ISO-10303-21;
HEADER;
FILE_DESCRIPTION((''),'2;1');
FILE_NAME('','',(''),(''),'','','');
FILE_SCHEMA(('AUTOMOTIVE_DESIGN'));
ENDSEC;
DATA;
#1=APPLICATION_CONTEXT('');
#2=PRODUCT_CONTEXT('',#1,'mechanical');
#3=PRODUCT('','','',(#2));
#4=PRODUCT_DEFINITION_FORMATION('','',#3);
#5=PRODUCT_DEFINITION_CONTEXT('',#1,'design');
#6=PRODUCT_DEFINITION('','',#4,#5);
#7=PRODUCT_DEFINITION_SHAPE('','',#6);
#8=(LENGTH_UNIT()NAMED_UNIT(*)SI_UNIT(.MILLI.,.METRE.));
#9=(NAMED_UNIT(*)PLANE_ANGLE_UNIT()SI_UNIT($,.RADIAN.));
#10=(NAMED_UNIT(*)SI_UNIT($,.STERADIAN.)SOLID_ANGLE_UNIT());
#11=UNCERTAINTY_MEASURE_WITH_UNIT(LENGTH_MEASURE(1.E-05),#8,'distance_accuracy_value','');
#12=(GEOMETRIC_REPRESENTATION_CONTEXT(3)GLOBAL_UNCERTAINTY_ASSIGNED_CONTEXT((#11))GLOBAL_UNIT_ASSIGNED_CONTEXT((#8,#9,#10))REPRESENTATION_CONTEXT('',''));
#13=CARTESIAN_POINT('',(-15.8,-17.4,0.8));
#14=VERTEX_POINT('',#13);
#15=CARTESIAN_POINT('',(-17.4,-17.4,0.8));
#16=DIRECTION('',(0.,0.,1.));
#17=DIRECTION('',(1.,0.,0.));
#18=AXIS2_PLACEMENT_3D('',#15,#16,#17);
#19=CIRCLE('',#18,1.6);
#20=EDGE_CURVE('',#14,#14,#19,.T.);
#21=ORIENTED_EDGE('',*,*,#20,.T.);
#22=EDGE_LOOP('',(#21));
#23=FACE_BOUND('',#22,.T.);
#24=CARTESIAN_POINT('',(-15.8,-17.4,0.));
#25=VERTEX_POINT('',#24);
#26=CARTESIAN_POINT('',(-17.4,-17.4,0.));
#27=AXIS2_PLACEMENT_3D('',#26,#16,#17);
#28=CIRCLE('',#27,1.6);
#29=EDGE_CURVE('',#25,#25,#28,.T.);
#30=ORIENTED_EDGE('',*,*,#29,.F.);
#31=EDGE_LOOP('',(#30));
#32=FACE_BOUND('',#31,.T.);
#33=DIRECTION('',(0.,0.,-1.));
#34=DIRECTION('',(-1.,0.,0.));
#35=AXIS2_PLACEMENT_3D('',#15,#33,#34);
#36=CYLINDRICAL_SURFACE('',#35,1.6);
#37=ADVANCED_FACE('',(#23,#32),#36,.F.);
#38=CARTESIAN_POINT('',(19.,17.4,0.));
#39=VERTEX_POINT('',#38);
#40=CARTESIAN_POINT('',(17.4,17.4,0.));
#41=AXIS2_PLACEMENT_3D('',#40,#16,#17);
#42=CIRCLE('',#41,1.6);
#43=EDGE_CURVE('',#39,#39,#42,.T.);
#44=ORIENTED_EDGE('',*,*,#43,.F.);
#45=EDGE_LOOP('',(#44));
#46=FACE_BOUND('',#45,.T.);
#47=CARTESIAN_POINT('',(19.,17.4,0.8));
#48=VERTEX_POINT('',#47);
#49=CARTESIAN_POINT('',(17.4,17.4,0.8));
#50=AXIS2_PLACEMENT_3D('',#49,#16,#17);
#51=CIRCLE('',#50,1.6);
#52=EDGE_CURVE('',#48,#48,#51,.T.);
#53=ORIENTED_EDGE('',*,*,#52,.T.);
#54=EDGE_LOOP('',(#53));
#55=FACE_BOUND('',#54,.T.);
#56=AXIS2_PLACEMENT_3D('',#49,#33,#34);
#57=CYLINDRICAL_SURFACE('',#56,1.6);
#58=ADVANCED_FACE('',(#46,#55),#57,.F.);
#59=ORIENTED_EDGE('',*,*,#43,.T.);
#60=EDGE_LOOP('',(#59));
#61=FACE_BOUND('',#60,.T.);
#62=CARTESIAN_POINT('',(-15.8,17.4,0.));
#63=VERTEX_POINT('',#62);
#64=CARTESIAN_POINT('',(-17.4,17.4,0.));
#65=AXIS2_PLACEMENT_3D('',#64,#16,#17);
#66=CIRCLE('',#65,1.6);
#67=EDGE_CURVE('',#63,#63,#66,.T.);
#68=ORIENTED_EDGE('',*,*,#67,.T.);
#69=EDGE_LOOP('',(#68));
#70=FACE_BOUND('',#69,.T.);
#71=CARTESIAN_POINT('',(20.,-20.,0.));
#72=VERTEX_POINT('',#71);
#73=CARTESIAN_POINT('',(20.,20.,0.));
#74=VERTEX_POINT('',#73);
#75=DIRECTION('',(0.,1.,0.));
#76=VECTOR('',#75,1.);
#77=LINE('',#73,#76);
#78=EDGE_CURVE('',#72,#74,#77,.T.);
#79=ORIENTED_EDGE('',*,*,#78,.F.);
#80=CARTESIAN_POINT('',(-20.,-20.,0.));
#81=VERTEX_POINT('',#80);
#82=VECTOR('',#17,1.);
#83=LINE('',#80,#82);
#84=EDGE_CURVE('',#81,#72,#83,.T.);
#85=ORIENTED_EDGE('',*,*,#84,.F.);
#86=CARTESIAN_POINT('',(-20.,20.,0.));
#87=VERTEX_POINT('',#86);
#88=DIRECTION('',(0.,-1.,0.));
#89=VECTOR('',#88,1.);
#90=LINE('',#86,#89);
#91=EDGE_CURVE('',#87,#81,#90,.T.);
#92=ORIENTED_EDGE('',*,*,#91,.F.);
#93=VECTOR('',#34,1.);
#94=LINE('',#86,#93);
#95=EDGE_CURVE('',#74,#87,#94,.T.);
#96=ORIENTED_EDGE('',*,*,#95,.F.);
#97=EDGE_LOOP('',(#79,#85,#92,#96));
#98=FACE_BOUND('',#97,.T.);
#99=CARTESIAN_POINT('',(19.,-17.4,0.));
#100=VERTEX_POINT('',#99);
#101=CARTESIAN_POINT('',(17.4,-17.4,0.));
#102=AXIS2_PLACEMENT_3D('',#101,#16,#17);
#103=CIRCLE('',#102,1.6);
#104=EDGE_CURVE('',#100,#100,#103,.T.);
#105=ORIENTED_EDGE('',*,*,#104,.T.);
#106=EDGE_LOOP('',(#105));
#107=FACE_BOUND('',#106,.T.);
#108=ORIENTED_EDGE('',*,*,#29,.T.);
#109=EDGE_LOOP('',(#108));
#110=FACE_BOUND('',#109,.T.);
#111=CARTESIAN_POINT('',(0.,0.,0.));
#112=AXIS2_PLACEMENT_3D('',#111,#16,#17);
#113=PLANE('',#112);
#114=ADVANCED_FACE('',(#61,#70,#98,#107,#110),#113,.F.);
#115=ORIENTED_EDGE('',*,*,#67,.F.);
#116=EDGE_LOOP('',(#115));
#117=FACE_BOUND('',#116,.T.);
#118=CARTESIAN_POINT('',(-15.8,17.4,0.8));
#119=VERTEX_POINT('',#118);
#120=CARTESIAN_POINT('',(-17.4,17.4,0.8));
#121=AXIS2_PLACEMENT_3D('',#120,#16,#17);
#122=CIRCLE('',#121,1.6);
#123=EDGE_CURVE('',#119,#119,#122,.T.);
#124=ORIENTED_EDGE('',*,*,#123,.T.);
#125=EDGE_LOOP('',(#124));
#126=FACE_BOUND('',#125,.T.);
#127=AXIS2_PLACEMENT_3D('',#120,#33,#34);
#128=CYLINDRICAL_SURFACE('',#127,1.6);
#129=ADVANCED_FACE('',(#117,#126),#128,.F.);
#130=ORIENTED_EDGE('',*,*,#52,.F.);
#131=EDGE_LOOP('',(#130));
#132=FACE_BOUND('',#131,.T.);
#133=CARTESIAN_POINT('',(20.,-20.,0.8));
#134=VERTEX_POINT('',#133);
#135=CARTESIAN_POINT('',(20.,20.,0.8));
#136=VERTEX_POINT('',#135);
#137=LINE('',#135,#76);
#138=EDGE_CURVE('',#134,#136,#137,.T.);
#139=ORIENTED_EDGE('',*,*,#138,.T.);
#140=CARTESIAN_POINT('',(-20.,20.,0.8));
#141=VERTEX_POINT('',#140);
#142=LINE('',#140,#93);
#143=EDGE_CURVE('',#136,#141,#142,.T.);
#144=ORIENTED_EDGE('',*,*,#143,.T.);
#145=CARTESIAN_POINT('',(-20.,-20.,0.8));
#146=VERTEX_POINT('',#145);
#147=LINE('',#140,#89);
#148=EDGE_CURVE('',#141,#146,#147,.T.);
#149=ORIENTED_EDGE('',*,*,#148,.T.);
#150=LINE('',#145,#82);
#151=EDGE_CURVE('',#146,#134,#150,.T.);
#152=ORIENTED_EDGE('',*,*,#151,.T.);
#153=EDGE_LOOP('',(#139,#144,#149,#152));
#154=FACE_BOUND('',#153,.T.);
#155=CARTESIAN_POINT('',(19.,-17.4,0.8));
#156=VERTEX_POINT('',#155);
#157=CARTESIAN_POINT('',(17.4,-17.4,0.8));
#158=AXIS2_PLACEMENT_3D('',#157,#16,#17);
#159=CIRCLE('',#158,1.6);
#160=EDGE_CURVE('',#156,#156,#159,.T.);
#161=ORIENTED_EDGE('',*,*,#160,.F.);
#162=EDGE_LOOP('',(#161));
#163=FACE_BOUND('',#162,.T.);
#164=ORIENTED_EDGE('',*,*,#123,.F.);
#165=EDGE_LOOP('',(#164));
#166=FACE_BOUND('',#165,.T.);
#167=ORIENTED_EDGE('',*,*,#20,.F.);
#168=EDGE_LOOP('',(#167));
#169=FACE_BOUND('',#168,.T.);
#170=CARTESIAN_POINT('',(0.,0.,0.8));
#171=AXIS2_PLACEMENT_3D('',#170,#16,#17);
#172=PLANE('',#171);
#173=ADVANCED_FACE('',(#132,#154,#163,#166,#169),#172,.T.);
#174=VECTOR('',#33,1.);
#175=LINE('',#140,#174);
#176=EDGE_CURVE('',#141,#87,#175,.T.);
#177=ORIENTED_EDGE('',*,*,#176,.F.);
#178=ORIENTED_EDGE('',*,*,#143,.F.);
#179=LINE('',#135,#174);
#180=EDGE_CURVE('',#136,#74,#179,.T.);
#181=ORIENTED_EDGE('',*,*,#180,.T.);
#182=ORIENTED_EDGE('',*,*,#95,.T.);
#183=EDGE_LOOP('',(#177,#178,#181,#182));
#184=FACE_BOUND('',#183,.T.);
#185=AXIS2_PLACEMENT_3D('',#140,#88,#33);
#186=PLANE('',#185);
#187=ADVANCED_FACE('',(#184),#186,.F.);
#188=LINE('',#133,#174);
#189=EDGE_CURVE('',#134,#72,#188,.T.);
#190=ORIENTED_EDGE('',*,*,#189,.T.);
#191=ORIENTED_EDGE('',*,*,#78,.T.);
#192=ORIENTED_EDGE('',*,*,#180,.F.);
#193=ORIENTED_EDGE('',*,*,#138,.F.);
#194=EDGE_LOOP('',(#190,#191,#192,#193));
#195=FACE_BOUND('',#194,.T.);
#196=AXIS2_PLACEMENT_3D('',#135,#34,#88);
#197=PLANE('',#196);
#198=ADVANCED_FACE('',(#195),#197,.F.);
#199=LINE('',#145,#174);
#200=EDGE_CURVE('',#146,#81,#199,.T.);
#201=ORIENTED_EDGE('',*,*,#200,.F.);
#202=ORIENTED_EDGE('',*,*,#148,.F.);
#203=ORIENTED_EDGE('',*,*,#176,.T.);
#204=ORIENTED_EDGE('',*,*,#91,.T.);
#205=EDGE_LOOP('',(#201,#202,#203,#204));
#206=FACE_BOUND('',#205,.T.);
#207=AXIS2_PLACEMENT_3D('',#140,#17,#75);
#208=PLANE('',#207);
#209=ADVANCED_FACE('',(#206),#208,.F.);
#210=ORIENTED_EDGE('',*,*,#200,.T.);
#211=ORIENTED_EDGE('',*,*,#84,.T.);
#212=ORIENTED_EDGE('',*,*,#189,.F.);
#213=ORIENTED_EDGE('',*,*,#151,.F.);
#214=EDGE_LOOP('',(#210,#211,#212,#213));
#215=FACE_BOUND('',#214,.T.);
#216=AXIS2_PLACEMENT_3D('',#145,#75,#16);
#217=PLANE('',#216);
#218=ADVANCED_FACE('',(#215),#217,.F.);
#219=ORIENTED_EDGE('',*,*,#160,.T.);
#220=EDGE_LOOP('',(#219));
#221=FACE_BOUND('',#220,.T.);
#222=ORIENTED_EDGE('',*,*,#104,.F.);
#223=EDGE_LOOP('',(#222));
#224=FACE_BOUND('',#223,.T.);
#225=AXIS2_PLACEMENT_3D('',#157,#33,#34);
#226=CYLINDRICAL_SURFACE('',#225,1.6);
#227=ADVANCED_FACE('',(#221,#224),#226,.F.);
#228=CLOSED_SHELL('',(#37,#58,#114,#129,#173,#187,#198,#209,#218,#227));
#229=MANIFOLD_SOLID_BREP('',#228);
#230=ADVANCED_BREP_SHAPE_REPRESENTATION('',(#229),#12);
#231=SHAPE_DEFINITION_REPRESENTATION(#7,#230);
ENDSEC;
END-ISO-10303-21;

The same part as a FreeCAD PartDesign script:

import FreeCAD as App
import Part
import Sketcher

V = App.Vector


def add_polygon(sketch, points):
    """Adds a closed chain of lines whose ends are joined by coincident constraints."""
    first, n = sketch.GeometryCount, len(points)
    for a, b in zip(points, points[1:] + points[:1]):
        sketch.addGeometry(Part.LineSegment(App.Vector(*a, 0), App.Vector(*b, 0)), False)
    for i in range(n):
        sketch.addConstraint(Sketcher.Constraint("Coincident", first + i, 2, first + (i + 1) % n, 1))

doc = App.newDocument("Part")
params = doc.addObject("Spreadsheet::Sheet", "Params")
for row, (alias, value) in enumerate([
    ("sketch1_width", "40 mm"),
    ("pad1_length", "0.8 mm"),
    ("sketch2_diameter", "3.2 mm"),
    ("pocket1_length", "0.8 mm"),
], start=1):
    params.set(f"A{row}", alias)
    params.set(f"B{row}", "=" + value)
    params.setAlias(f"B{row}", alias)

body = doc.addObject("PartDesign::Body", "Body")

# Sketch on XY plane
sketch1 = doc.addObject("Sketcher::SketchObject", "Sketch")
body.addObject(sketch1)
sketch1.AttachmentSupport = (doc.XY_Plane, [""])
sketch1.MapMode = "FlatFace"
add_polygon(sketch1, [(-20, 20), (-20, -20), (20, -20), (20, 20)])  # lines 0-3
sketch1.addConstraint([
    Sketcher.Constraint("Vertical", 0),
    Sketcher.Constraint("Horizontal", 1),
    Sketcher.Constraint("Vertical", 2),
    Sketcher.Constraint("Horizontal", 3),
    Sketcher.Constraint("Symmetric", 0, 2, 2, 2, -1, 1),
    Sketcher.Constraint("Equal", 3, 0),
    Sketcher.Constraint("DistanceX", 1, 1, 1, 2, 40.0),
])
sketch1.setExpression("Constraints[10]", "Params.sketch1_width")
pad1 = doc.addObject("PartDesign::Pad", "Pad")
body.addObject(pad1)
pad1.Profile = sketch1
pad1.setExpression("Length", "Params.pad1_length")

# Sketch on XY plane
sketch2 = doc.addObject("Sketcher::SketchObject", "Sketch001")
body.addObject(sketch2)
sketch2.AttachmentSupport = (doc.XY_Plane, [""])
sketch2.MapMode = "FlatFace"
sketch2.addGeometry([
    Part.Circle(V(-17.4, -17.4, 0), V(0, 0, 1), 1.6),
    Part.Circle(V(-17.4, 17.4, 0), V(0, 0, 1), 1.6),
    Part.Circle(V(17.4, 17.4, 0), V(0, 0, 1), 1.6),
    Part.Circle(V(17.4, -17.4, 0), V(0, 0, 1), 1.6),
], False)
sketch2.addConstraint([
    Sketcher.Constraint("Equal", 0, 1),
    Sketcher.Constraint("Equal", 1, 2),
    Sketcher.Constraint("Equal", 2, 3),
    Sketcher.Constraint("Symmetric", 0, 3, 2, 3, -1, 1),
    Sketcher.Constraint("Symmetric", 1, 3, 3, 3, -1, 1),
    Sketcher.Constraint("Symmetric", 1, 3, 2, 3, -2),
    Sketcher.Constraint("Diameter", 0, 3.2),
    Sketcher.Constraint("DistanceX", 0, 3, -1, 1, 17.4),
    Sketcher.Constraint("DistanceY", 0, 3, -1, 1, 17.4),
])
sketch2.setExpression("Constraints[6]", "Params.sketch2_diameter")
pocket1 = doc.addObject("PartDesign::Pocket", "Pocket")
body.addObject(pocket1)
pocket1.Profile = sketch2
pocket1.setExpression("Length", "Params.pocket1_length")
pocket1.Reversed = True

doc.recompute()
